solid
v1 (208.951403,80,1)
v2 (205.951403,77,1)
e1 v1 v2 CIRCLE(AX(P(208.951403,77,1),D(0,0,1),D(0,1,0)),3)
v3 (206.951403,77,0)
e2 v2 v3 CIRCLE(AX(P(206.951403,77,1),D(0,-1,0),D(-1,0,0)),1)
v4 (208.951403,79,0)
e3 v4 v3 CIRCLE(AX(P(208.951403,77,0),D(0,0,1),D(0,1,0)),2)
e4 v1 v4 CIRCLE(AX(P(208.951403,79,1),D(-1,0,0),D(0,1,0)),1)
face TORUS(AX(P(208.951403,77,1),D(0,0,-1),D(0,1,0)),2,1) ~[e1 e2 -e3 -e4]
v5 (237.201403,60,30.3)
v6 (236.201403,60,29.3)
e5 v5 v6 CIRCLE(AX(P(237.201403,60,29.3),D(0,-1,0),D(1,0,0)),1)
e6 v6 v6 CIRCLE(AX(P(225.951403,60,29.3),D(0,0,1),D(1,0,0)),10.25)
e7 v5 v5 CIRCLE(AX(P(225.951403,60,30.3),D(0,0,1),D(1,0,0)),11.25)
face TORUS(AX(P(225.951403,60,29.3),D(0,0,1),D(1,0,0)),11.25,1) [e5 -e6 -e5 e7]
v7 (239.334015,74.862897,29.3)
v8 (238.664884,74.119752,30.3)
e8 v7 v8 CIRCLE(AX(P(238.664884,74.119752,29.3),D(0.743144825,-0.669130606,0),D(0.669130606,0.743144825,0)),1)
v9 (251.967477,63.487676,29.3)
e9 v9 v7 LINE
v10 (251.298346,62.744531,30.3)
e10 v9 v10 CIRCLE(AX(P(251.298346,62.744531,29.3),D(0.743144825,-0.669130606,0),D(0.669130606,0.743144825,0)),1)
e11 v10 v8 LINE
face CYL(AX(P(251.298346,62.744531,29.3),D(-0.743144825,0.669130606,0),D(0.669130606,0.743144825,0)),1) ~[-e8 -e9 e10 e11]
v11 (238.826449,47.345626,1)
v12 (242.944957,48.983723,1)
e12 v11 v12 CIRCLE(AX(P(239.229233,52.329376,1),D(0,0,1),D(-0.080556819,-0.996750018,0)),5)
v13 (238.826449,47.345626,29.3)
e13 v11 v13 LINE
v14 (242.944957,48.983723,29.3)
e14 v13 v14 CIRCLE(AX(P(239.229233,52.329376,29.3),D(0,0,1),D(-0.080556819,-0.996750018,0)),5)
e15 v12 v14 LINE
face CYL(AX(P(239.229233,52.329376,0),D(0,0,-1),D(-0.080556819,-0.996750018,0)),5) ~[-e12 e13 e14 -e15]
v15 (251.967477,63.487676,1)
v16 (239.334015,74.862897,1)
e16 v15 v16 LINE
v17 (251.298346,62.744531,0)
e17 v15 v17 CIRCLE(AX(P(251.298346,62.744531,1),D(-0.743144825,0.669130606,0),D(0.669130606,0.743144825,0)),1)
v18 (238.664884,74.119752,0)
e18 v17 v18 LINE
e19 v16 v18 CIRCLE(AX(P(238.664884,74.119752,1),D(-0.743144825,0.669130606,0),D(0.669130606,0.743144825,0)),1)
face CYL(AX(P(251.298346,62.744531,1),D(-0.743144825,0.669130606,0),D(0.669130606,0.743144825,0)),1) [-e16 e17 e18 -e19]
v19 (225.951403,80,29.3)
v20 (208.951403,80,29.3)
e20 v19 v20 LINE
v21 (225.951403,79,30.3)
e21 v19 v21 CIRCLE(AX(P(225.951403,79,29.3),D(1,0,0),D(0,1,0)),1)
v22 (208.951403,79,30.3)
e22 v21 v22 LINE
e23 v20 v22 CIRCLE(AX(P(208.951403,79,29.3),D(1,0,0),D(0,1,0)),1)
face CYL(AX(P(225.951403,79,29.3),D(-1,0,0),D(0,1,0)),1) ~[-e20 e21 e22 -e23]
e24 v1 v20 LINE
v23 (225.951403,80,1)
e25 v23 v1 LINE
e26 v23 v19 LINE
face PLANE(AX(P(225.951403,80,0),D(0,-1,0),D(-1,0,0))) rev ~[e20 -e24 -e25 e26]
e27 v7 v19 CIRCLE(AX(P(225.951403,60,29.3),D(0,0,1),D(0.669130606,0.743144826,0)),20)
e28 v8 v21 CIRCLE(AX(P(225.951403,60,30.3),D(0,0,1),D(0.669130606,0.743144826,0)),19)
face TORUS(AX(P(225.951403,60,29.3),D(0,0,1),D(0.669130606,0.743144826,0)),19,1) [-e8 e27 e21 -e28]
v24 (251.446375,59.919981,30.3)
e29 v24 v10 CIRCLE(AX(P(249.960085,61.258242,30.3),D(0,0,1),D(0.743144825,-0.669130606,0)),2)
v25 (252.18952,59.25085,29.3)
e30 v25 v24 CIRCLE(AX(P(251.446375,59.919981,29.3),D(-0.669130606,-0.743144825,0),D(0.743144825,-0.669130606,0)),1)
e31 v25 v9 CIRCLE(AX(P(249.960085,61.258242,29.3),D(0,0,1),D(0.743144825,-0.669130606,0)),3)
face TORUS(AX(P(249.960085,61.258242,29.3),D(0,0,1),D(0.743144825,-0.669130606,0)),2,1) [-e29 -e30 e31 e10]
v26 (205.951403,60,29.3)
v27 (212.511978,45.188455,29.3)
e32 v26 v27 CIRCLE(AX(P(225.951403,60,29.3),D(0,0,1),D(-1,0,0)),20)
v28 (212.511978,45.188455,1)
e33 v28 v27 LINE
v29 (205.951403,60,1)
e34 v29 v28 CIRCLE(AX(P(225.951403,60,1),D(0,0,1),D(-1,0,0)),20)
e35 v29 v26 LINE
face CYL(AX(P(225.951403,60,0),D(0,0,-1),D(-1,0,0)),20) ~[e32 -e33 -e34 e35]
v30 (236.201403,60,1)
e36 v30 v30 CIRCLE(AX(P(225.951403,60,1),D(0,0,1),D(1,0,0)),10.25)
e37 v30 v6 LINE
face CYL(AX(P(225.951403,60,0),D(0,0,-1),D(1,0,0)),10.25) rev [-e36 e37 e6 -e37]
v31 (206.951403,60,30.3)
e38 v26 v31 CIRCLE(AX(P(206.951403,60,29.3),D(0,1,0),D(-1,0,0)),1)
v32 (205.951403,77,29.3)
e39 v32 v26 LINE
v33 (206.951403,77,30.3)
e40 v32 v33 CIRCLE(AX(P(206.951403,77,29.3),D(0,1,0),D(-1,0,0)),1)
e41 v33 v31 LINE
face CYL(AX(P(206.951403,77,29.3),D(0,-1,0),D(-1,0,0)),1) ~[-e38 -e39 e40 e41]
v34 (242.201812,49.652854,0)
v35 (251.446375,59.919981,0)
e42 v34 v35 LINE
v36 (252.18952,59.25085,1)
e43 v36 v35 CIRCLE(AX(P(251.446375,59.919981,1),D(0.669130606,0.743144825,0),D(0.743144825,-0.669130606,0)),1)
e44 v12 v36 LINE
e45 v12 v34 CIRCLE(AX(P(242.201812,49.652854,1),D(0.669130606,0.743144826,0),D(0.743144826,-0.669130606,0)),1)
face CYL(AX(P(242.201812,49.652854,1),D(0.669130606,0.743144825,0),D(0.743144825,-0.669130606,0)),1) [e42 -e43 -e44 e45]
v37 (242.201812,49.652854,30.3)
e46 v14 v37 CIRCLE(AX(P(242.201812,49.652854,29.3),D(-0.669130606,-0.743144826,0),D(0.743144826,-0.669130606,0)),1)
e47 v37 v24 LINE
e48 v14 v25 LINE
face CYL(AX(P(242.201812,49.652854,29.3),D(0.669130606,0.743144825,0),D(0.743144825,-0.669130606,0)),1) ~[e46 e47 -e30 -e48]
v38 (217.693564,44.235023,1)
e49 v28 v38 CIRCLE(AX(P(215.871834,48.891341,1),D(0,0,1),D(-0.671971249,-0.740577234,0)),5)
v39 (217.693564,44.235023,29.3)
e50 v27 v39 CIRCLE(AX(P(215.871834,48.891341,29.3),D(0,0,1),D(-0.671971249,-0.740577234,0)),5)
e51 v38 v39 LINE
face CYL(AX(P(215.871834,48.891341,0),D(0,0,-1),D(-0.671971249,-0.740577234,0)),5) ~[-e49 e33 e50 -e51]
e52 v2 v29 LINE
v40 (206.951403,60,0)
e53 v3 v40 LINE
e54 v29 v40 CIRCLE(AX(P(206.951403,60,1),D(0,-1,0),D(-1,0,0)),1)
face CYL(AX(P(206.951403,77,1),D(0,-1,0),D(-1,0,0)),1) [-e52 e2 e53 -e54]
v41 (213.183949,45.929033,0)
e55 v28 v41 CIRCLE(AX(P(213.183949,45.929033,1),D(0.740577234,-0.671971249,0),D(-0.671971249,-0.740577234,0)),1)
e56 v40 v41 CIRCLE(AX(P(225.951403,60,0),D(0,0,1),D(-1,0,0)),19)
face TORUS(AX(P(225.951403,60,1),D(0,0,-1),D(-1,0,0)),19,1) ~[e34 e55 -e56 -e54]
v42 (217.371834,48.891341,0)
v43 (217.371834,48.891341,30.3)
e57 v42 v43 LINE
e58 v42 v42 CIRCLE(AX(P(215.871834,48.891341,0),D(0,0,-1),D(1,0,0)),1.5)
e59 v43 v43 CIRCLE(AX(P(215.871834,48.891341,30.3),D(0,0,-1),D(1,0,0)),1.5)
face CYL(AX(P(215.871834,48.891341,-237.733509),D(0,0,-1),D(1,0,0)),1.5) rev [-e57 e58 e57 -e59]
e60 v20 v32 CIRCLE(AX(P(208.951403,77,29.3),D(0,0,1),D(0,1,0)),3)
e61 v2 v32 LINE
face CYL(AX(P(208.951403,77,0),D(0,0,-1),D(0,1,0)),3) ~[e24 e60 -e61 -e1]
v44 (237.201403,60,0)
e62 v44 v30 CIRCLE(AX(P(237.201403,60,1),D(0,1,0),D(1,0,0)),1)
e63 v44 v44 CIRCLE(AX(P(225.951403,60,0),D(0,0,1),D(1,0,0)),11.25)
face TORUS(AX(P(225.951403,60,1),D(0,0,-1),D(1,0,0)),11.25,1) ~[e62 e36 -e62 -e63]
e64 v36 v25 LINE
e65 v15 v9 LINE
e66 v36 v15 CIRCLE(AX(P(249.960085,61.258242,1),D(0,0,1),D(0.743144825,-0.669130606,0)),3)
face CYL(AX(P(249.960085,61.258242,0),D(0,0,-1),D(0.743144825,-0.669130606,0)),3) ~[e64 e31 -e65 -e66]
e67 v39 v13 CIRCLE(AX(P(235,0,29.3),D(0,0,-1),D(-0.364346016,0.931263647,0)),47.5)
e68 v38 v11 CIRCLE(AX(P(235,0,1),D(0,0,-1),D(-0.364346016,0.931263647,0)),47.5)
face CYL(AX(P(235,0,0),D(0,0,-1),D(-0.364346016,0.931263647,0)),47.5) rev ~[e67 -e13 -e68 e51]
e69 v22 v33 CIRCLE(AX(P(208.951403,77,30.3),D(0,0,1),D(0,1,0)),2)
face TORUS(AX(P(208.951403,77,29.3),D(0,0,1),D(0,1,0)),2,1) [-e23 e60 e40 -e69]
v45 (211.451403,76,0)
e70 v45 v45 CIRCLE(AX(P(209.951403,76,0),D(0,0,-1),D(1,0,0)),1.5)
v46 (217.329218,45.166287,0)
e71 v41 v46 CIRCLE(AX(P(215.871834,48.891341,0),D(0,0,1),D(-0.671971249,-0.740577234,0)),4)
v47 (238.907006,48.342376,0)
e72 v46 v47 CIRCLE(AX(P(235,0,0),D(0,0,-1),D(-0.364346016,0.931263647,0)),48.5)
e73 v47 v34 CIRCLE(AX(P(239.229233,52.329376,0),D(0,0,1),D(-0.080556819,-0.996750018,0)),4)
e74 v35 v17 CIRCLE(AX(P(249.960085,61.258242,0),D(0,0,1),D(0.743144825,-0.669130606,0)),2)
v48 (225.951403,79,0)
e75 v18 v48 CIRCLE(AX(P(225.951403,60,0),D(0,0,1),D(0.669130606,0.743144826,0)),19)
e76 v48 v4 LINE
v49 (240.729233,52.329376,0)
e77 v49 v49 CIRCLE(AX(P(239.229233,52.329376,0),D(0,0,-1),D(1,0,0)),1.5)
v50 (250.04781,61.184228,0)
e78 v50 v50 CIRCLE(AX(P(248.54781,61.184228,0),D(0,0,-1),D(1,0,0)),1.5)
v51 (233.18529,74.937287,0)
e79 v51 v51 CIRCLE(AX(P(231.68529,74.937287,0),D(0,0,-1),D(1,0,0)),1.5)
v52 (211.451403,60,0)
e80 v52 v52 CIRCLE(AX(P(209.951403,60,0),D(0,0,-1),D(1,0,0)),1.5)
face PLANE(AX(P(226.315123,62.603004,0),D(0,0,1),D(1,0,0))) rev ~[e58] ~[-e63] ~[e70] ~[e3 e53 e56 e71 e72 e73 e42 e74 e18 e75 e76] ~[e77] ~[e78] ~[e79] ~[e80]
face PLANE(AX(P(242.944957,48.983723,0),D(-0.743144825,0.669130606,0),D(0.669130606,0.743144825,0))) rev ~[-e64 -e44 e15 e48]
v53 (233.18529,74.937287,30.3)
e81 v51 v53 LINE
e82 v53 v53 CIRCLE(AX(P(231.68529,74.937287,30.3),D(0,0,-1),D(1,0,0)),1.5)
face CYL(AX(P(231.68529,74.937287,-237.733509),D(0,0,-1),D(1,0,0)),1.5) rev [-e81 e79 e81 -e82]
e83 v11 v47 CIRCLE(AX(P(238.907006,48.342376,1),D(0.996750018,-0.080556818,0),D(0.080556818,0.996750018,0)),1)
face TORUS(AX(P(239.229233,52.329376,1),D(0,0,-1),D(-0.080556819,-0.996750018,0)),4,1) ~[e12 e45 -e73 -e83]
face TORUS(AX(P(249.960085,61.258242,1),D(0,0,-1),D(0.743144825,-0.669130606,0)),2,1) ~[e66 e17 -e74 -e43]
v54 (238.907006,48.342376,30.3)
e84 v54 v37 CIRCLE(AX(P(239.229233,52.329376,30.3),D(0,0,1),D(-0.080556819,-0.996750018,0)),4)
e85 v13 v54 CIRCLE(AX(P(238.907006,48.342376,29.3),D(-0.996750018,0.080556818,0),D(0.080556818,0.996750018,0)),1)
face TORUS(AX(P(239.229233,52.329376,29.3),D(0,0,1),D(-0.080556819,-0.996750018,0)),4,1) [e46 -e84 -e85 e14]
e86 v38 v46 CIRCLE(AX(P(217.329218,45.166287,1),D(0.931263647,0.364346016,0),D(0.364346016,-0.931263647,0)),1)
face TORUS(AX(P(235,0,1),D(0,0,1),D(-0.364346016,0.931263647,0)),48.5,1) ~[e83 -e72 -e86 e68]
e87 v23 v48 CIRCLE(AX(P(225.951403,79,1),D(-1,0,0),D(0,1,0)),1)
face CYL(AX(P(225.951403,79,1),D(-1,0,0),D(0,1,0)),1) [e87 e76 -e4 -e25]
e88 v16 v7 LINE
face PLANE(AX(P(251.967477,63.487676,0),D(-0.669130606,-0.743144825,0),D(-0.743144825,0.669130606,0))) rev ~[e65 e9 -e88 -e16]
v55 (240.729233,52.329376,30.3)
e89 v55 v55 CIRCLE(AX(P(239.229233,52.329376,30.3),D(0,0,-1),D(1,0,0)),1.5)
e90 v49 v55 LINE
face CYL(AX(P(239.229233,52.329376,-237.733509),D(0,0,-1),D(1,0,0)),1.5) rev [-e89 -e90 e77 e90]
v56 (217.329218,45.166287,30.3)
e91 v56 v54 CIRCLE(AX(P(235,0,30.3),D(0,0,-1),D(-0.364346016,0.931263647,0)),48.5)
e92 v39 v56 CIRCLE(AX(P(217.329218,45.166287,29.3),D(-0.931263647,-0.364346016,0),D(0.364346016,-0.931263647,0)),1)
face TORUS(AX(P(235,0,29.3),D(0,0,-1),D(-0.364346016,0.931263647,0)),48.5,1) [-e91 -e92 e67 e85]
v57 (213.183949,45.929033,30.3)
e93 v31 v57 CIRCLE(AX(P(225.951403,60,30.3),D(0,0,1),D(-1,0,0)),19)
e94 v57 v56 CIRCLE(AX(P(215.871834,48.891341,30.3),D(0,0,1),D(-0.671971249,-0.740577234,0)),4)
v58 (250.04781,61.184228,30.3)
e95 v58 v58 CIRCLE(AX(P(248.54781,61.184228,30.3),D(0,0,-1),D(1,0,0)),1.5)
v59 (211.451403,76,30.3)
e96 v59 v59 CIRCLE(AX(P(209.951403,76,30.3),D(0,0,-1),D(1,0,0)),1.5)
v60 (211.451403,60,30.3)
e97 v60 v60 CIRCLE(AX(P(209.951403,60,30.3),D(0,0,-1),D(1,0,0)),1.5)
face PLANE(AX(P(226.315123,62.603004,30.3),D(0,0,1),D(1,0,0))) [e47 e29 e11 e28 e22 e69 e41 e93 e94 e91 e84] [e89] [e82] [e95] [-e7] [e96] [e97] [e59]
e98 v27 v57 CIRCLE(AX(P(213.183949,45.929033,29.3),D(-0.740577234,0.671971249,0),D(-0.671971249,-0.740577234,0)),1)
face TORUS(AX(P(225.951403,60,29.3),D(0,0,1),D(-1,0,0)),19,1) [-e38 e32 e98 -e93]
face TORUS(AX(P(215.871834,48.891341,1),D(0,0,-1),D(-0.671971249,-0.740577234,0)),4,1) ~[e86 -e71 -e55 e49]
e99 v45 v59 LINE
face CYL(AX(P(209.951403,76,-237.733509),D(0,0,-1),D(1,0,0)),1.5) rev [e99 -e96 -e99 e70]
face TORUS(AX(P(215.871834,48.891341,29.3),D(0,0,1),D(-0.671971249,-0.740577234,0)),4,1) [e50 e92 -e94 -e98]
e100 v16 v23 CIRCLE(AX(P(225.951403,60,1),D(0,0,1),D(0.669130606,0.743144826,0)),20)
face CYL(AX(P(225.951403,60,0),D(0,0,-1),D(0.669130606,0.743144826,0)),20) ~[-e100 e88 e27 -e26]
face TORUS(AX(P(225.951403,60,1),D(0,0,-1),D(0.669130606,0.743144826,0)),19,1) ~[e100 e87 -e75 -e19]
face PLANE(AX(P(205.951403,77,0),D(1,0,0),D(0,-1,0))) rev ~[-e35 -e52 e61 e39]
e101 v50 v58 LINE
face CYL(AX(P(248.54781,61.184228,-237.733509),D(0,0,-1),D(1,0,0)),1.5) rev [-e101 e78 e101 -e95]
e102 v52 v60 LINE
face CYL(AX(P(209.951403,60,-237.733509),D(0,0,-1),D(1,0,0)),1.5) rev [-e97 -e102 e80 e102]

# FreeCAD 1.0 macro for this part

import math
import FreeCAD as App
import Part
import Sketcher
from FreeCAD import Vector
Q = App.Units.Quantity


def edges_at(feature, points):
    """Names of the edges that pass closest to the given points."""
    edges = feature.Shape.Edges
    near = lambda p: min(range(len(edges)), key=lambda i: edges[i].distToShape(Part.Vertex(*p))[0])
    return sorted({f"Edge{near(p) + 1}" for p in points})

doc = App.newDocument("Part")
body = doc.addObject("PartDesign::Body", "Body")

sketch1 = body.newObject("Sketcher::SketchObject", "Sketch")
sketch1.AttachmentSupport = (doc.getObject("XY_Plane"), [""])
sketch1.MapMode = "FlatFace"
sketch1.addGeometry([
    Part.LineSegment(Vector(205.951403, 77, 0), Vector(205.951403, 60, 0)),
    Part.ArcOfCircle(Part.Circle(Vector(225.951403, 60, 0), Vector(0, 0, 1), 20), math.radians(180), math.radians(227.78061)),
    Part.ArcOfCircle(Part.Circle(Vector(215.871834, 48.891341, 0), Vector(0, 0, 1), 5), math.radians(-132.21939), math.radians(-68.632659)),
    Part.ArcOfCircle(Part.Circle(Vector(235, 0, 0), Vector(0, 0, 1), 47.5), math.radians(85.379428), math.radians(111.367341)),
    Part.ArcOfCircle(Part.Circle(Vector(239.229233, 52.329376, 0), Vector(0, 0, 1), 5), math.radians(-94.620572), math.radians(-42)),
    Part.LineSegment(Vector(242.944957, 48.983723, 0), Vector(252.18952, 59.25085, 0)),
    Part.ArcOfCircle(Part.Circle(Vector(249.960085, 61.258242, 0), Vector(0, 0, 1), 3), math.radians(-42), math.radians(48)),
    Part.LineSegment(Vector(251.967477, 63.487676, 0), Vector(239.334015, 74.862897, 0)),
    Part.ArcOfCircle(Part.Circle(Vector(225.951403, 60, 0), Vector(0, 0, 1), 20), math.radians(48), math.radians(90)),
    Part.LineSegment(Vector(225.951403, 80, 0), Vector(208.951403, 80, 0)),
    Part.ArcOfCircle(Part.Circle(Vector(208.951403, 77, 0), Vector(0, 0, 1), 3), math.radians(90), math.radians(180)),
    Part.Circle(Vector(225.951403, 60, 0), Vector(0, 0, 1), 10.25),
], False)
sketch1.addConstraint([
    Sketcher.Constraint("Tangent", 0, 2, 1, 1),
    Sketcher.Constraint("Tangent", 1, 2, 2, 1),
    Sketcher.Constraint("Tangent", 2, 2, 3, 2),
    Sketcher.Constraint("Tangent", 3, 1, 4, 1),
    Sketcher.Constraint("Tangent", 4, 2, 5, 1),
    Sketcher.Constraint("Tangent", 5, 2, 6, 1),
    Sketcher.Constraint("Tangent", 6, 2, 7, 1),
    Sketcher.Constraint("Tangent", 7, 2, 8, 1),
    Sketcher.Constraint("Tangent", 8, 2, 9, 1),
    Sketcher.Constraint("Tangent", 9, 2, 10, 1),
    Sketcher.Constraint("Tangent", 10, 2, 0, 1),
    Sketcher.Constraint("Vertical", 0),
    Sketcher.Constraint("Horizontal", 9),
    Sketcher.Constraint("Coincident", 8, 3, 1, 3),
    Sketcher.Constraint("Coincident", 11, 3, 1, 3),
    Sketcher.Constraint("Equal", 2, 4),
    Sketcher.Constraint("Equal", 1, 8),
    Sketcher.Constraint("Equal", 6, 10),
    Sketcher.Constraint("PointOnObject", 3, 3, -1),
    Sketcher.Constraint("Perpendicular", 5, 7),
    Sketcher.Constraint("Radius", 1, 20.0),
    Sketcher.Constraint("Radius", 2, 5.0),
    Sketcher.Constraint("Radius", 6, 3.0),
    Sketcher.Constraint("Diameter", 11, 20.5),
    Sketcher.Constraint("Radius", 3, 47.5),
    Sketcher.Constraint("Angle", 5, Q("48 deg")),
    Sketcher.Constraint("Distance", 7, 17.0),
    Sketcher.Constraint("DistanceY", -1, 1, 1, 3, 60.0),
    Sketcher.Constraint("DistanceX", -1, 1, 3, 3, 235.0),
    Sketcher.Constraint("DistanceX", 2, 3, 4, 3, 23.357399),
])
pad1 = body.newObject("PartDesign::Pad", "Pad")
pad1.Profile = sketch1
pad1.Length = 30.3

sketch2 = body.newObject("Sketcher::SketchObject", "Sketch001")
sketch2.AttachmentSupport = (doc.getObject("XY_Plane"), [""])
sketch2.MapMode = "FlatFace"
sketch2.AttachmentOffset = App.Placement(Vector(0, 0, 30.3), App.Rotation())
sketch2.addGeometry([
    Part.Circle(Vector(215.871834, 48.891341, 0), Vector(0, 0, 1), 1.5),
    Part.Circle(Vector(209.951403, 60, 0), Vector(0, 0, 1), 1.5),
    Part.Circle(Vector(209.951403, 76, 0), Vector(0, 0, 1), 1.5),
    Part.Circle(Vector(231.68529, 74.937287, 0), Vector(0, 0, 1), 1.5),
    Part.Circle(Vector(239.229233, 52.329376, 0), Vector(0, 0, 1), 1.5),
    Part.Circle(Vector(248.54781, 61.184228, 0), Vector(0, 0, 1), 1.5),
], False)
sketch2.addConstraint([
    Sketcher.Constraint("Equal", 0, 1),
    Sketcher.Constraint("Equal", 1, 2),
    Sketcher.Constraint("Equal", 2, 3),
    Sketcher.Constraint("Equal", 3, 4),
    Sketcher.Constraint("Equal", 4, 5),
    Sketcher.Constraint("Vertical", 1, 3, 2, 3),
    Sketcher.Constraint("Diameter", 0, 3.0),
    Sketcher.Constraint("DistanceY", -1, 1, 1, 3, 60.0),
    Sketcher.Constraint("DistanceY", -1, 1, 2, 3, 76.0),
    Sketcher.Constraint("DistanceX", 0, 3, 4, 3, 23.357399),
    Sketcher.Constraint("DistanceY", -1, 1, 0, 3, 48.891341),
    Sketcher.Constraint("DistanceX", -1, 1, 3, 3, 231.68529),
    Sketcher.Constraint("DistanceX", -1, 1, 5, 3, 248.54781),
    Sketcher.Constraint("DistanceX", 1, 3, 0, 3, 5.920431),
    Sketcher.Constraint("DistanceY", 4, 3, 3, 3, 22.607911),
    Sketcher.Constraint("DistanceY", 4, 3, 5, 3, 8.854852),
    Sketcher.Constraint("DistanceX", -1, 1, 0, 3, 215.871834),
    Sketcher.Constraint("DistanceY", -1, 1, 3, 3, 74.937287),
])
pocket1 = body.newObject("PartDesign::Pocket", "Pocket")
pocket1.Profile = sketch2
pocket1.Type = "ThroughAll"
pocket1.Midplane = True
doc.recompute()

fillet = body.newObject("PartDesign::Fillet", "Fillet")
fillet.Base = (pocket1, edges_at(pocket1, [
    (205.951, 68.5, 0),
    (205.951, 68.5, 30.3),
    (206.83, 79.121, 0),
    (206.83, 79.121, 30.3),
    (207.665, 51.9, 0),
    (207.665, 51.9, 30.3),
    (217.451, 80, 0),
    (214.967, 43.974, 0),
    (233.119, 78.672, 0),
    (228.083, 46.994, 0),
    (245.651, 69.175, 0),
    (241.077, 47.683, 0),
    (252.956, 61.415, 0),
    (247.567, 54.117, 0),
    (215.701, 60, 0),
    (217.451, 80, 30.3),
    (214.967, 43.974, 30.3),
    (233.119, 78.672, 30.3),
    (228.083, 46.994, 30.3),
    (245.651, 69.175, 30.3),
    (241.077, 47.683, 30.3),
    (252.956, 61.415, 30.3),
    (247.567, 54.117, 30.3),
    (215.701, 60, 30.3),
]))
fillet.Radius = 1

doc.recompute()
